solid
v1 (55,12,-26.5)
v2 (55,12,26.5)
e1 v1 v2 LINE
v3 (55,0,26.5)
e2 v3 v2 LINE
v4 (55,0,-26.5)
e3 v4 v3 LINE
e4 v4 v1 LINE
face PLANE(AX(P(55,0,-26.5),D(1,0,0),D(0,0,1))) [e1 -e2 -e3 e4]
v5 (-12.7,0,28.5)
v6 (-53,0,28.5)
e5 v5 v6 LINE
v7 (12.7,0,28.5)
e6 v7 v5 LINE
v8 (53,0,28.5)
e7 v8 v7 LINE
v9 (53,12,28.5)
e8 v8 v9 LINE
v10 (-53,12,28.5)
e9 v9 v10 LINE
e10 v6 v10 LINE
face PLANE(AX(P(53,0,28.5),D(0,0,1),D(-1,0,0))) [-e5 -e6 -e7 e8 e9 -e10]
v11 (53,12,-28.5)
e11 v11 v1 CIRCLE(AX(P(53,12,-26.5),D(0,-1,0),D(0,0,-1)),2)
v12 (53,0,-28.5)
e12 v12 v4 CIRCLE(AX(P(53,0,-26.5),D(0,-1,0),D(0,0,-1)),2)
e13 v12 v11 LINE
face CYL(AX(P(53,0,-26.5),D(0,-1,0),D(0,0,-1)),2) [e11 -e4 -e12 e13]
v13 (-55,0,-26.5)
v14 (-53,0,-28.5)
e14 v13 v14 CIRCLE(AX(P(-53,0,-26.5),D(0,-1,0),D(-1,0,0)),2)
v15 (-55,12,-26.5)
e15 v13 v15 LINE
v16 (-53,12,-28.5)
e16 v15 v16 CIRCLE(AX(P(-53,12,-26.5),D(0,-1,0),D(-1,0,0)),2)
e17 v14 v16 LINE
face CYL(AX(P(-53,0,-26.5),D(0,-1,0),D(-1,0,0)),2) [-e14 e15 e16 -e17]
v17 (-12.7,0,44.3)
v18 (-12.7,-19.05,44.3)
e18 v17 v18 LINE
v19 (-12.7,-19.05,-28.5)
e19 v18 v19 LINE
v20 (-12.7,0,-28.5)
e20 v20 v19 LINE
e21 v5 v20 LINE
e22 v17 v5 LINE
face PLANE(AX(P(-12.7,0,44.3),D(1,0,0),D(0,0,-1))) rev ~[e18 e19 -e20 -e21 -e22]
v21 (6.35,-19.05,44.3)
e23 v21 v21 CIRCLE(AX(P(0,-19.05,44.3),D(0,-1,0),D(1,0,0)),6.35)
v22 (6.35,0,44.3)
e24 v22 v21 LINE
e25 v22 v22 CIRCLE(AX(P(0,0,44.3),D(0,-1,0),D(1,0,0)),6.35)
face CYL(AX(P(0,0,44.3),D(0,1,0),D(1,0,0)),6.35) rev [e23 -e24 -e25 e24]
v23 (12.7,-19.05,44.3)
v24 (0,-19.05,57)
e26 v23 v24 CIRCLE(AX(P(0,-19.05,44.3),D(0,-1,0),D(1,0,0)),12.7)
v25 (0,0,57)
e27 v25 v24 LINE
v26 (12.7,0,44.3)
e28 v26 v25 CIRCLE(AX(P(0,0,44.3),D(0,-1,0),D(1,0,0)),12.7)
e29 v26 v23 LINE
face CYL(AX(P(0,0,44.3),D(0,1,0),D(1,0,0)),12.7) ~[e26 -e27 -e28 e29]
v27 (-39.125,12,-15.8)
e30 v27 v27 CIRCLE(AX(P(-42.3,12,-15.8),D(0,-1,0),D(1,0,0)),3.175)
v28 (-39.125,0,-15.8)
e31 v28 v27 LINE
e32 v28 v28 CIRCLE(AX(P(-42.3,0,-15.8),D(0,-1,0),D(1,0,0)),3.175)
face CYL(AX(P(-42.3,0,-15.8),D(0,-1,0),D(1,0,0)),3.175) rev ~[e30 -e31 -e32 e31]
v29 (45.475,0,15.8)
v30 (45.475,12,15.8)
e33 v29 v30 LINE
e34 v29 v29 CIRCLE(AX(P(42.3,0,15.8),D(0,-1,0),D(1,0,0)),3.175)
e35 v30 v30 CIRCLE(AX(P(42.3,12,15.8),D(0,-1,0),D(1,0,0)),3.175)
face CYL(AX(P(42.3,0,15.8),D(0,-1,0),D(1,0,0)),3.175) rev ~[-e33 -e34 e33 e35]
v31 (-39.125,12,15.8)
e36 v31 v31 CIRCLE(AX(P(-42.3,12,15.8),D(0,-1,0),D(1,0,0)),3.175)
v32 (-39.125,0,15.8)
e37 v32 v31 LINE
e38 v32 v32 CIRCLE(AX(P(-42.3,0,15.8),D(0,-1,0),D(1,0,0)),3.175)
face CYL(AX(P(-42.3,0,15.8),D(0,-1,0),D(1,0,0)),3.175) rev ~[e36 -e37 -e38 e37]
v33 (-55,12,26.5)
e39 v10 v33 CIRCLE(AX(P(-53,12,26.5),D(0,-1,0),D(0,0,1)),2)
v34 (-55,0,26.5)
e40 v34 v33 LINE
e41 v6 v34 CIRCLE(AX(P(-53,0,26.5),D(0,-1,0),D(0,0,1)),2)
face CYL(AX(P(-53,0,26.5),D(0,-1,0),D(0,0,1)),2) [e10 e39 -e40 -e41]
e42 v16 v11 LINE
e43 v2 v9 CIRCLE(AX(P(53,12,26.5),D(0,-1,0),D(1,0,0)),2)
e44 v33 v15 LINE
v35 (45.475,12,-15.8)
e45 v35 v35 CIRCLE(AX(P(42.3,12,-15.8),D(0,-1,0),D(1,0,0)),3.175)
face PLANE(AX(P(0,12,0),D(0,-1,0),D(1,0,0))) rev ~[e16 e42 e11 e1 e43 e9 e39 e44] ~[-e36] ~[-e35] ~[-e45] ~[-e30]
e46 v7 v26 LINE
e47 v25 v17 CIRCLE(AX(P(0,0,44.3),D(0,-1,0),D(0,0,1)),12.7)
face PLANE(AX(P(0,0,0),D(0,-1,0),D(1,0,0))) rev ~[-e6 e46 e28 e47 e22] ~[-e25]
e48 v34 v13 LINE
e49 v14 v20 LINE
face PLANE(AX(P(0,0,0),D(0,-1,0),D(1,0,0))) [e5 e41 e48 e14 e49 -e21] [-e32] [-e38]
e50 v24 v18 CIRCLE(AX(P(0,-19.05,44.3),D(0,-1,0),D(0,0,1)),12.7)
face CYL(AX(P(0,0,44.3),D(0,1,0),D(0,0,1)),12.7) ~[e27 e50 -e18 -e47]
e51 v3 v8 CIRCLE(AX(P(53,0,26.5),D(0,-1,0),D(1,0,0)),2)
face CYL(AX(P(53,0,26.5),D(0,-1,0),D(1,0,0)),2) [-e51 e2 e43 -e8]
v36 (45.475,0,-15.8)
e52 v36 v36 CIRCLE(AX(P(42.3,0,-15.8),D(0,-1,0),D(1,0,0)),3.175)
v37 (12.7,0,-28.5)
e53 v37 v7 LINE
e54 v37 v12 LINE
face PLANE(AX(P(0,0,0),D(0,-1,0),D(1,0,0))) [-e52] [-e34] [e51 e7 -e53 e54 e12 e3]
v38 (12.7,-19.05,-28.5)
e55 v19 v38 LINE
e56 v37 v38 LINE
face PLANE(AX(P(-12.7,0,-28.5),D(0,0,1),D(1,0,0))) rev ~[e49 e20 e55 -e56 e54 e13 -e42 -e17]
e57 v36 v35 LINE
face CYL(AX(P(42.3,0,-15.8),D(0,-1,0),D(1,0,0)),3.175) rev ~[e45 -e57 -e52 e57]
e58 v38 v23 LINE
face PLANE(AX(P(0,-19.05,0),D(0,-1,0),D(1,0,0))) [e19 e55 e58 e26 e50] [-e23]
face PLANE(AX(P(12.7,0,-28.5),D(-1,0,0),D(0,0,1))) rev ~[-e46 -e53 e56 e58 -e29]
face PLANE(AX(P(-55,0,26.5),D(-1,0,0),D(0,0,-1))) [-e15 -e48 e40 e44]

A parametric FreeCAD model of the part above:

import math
import FreeCAD as App
import Part
import Sketcher

V = App.Vector
Q = App.Units.Quantity

doc = App.newDocument("Part")
params = doc.addObject("Spreadsheet::Sheet", "Params")
for row, (alias, value) in enumerate([
    ("sketch1_radius", "2 mm"),
    ("sketch1_diameter", "6.35 mm"),
    ("sketch1_width", "106 mm"),
    ("sketch1_height", "53 mm"),
    ("pad1_length", "12 mm"),
    ("sketch2_diameter", "12.7 mm"),
    ("sketch2_radius", "12.7 mm"),
    ("sketch2_height", "72.8 mm"),
    ("pad2_length", "19.05 mm"),
], start=1):
    params.set(f"A{row}", alias)
    params.set(f"B{row}", "=" + value)
    params.setAlias(f"B{row}", alias)

body = doc.addObject("PartDesign::Body", "Body")

# Sketch on XZ plane
sketch1 = doc.addObject("Sketcher::SketchObject", "Sketch")
body.addObject(sketch1)
sketch1.AttachmentSupport = (doc.XZ_Plane, [""])
sketch1.MapMode = "FlatFace"
sketch1.addGeometry(Part.LineSegment(V(-53, -28.5, 0), V(53, -28.5, 0)), False)
sketch1.addGeometry(Part.ArcOfCircle(Part.Circle(V(53, -26.5, 0), V(0, 0, 1), 2), math.radians(-90), math.radians(0)), False)
sketch1.addGeometry(Part.LineSegment(V(55, -26.5, 0), V(55, 26.5, 0)), False)
sketch1.addGeometry(Part.ArcOfCircle(Part.Circle(V(53, 26.5, 0), V(0, 0, 1), 2), math.radians(0), math.radians(90)), False)
sketch1.addGeometry(Part.LineSegment(V(53, 28.5, 0), V(-53, 28.5, 0)), False)
sketch1.addGeometry(Part.ArcOfCircle(Part.Circle(V(-53, 26.5, 0), V(0, 0, 1), 2), math.radians(90), math.radians(180)), False)
sketch1.addGeometry(Part.LineSegment(V(-55, 26.5, 0), V(-55, -26.5, 0)), False)
sketch1.addGeometry(Part.ArcOfCircle(Part.Circle(V(-53, -26.5, 0), V(0, 0, 1), 2), math.radians(180), math.radians(270)), False)
sketch1.addGeometry(Part.Circle(V(-42.3, -15.8, 0), V(0, 0, 1), 3.175), False)
sketch1.addGeometry(Part.Circle(V(42.3, -15.8, 0), V(0, 0, 1), 3.175), False)
sketch1.addGeometry(Part.Circle(V(-42.3, 15.8, 0), V(0, 0, 1), 3.175), False)
sketch1.addGeometry(Part.Circle(V(42.3, 15.8, 0), V(0, 0, 1), 3.175), False)
sketch1.addConstraint(Sketcher.Constraint("Tangent", 0, 2, 1, 1))
sketch1.addConstraint(Sketcher.Constraint("Tangent", 1, 2, 2, 1))
sketch1.addConstraint(Sketcher.Constraint("Tangent", 2, 2, 3, 1))
sketch1.addConstraint(Sketcher.Constraint("Tangent", 3, 2, 4, 1))
sketch1.addConstraint(Sketcher.Constraint("Tangent", 4, 2, 5, 1))
sketch1.addConstraint(Sketcher.Constraint("Tangent", 5, 2, 6, 1))
sketch1.addConstraint(Sketcher.Constraint("Tangent", 6, 2, 7, 1))
sketch1.addConstraint(Sketcher.Constraint("Tangent", 7, 2, 0, 1))
sketch1.addConstraint(Sketcher.Constraint("Horizontal", 0))
sketch1.addConstraint(Sketcher.Constraint("Vertical", 2))
sketch1.addConstraint(Sketcher.Constraint("Horizontal", 4))
sketch1.addConstraint(Sketcher.Constraint("Vertical", 6))
sketch1.addConstraint(Sketcher.Constraint("Equal", 1, 3))
sketch1.addConstraint(Sketcher.Constraint("Equal", 3, 5))
sketch1.addConstraint(Sketcher.Constraint("Equal", 5, 7))
sketch1.addConstraint(Sketcher.Constraint("Equal", 8, 9))
sketch1.addConstraint(Sketcher.Constraint("Equal", 9, 10))
sketch1.addConstraint(Sketcher.Constraint("Equal", 10, 11))
sketch1.addConstraint(Sketcher.Constraint("Symmetric", 1, 3, 5, 3, -1, 1))
sketch1.addConstraint(Sketcher.Constraint("Symmetric", 9, 3, 10, 3, -1, 1))
sketch1.addConstraint(Sketcher.Constraint("Symmetric", 8, 3, 11, 3, -1, 1))
sketch1.addConstraint(Sketcher.Constraint("Symmetric", 8, 3, 9, 3, -2))
sketch1.addConstraint(Sketcher.Constraint("Radius", 1, Q("2 mm")))
sketch1.addConstraint(Sketcher.Constraint("Diameter", 8, Q("6.35 mm")))
sketch1.addConstraint(Sketcher.Constraint("DistanceX", 0, 1, 0, 2, Q("106 mm")))
sketch1.addConstraint(Sketcher.Constraint("DistanceY", 2, 1, 2, 2, Q("53 mm")))
sketch1.addConstraint(Sketcher.Constraint("DistanceX", 8, 3, -1, 1, Q("42.3 mm")))
sketch1.addConstraint(Sketcher.Constraint("DistanceY", 8, 3, -1, 1, Q("15.8 mm")))
sketch1.setExpression("Constraints[22]", "Params.sketch1_radius")
sketch1.setExpression("Constraints[23]", "Params.sketch1_diameter")
sketch1.setExpression("Constraints[24]", "Params.sketch1_width")
sketch1.setExpression("Constraints[25]", "Params.sketch1_height")
pad1 = doc.addObject("PartDesign::Pad", "Pad")
body.addObject(pad1)
pad1.Profile = sketch1
pad1.setExpression("Length", "Params.pad1_length")
pad1.Reversed = True

# Sketch on XZ plane
sketch2 = doc.addObject("Sketcher::SketchObject", "Sketch001")
body.addObject(sketch2)
sketch2.AttachmentSupport = (doc.XZ_Plane, [""])
sketch2.MapMode = "FlatFace"
sketch2.addGeometry(Part.LineSegment(V(-12.7, -28.5, 0), V(12.7, -28.5, 0)), False)
sketch2.addGeometry(Part.LineSegment(V(12.7, -28.5, 0), V(12.7, 44.3, 0)), False)
sketch2.addGeometry(Part.ArcOfCircle(Part.Circle(V(0, 44.3, 0), V(0, 0, 1), 12.7), math.radians(0), math.radians(90)), False)
sketch2.addGeometry(Part.ArcOfCircle(Part.Circle(V(0, 44.3, 0), V(0, 0, 1), 12.7), math.radians(90), math.radians(180)), False)
sketch2.addGeometry(Part.LineSegment(V(-12.7, 44.3, 0), V(-12.7, -28.5, 0)), False)
sketch2.addGeometry(Part.Circle(V(0, 44.3, 0), V(0, 0, 1), 6.35), False)
sketch2.addConstraint(Sketcher.Constraint("Coincident", 0, 2, 1, 1))
sketch2.addConstraint(Sketcher.Constraint("Tangent", 1, 2, 2, 1))
sketch2.addConstraint(Sketcher.Constraint("Tangent", 2, 2, 3, 1))
sketch2.addConstraint(Sketcher.Constraint("Tangent", 3, 2, 4, 1))
sketch2.addConstraint(Sketcher.Constraint("Coincident", 4, 2, 0, 1))
sketch2.addConstraint(Sketcher.Constraint("Horizontal", 0))
sketch2.addConstraint(Sketcher.Constraint("Vertical", 1))
sketch2.addConstraint(Sketcher.Constraint("Vertical", 4))
sketch2.addConstraint(Sketcher.Constraint("Coincident", 5, 3, 2, 3))
sketch2.addConstraint(Sketcher.Constraint("Equal", 2, 3))
sketch2.addConstraint(Sketcher.Constraint("PointOnObject", 2, 3, -2))
sketch2.addConstraint(Sketcher.Constraint("PointOnObject", 2, 2, -2))
sketch2.addConstraint(Sketcher.Constraint("Diameter", 5, Q("12.7 mm")))
sketch2.addConstraint(Sketcher.Constraint("Radius", 2, Q("12.7 mm")))
sketch2.addConstraint(Sketcher.Constraint("DistanceY", 1, 1, 1, 2, Q("72.8 mm")))
sketch2.addConstraint(Sketcher.Constraint("DistanceY", -1, 1, 2, 2, Q("57 mm")))
sketch2.setExpression("Constraints[12]", "Params.sketch2_diameter")
sketch2.setExpression("Constraints[13]", "Params.sketch2_radius")
sketch2.setExpression("Constraints[14]", "Params.sketch2_height")
pad2 = doc.addObject("PartDesign::Pad", "Pad001")
body.addObject(pad2)
pad2.Profile = sketch2
pad2.setExpression("Length", "Params.pad2_length")

doc.recompute()
